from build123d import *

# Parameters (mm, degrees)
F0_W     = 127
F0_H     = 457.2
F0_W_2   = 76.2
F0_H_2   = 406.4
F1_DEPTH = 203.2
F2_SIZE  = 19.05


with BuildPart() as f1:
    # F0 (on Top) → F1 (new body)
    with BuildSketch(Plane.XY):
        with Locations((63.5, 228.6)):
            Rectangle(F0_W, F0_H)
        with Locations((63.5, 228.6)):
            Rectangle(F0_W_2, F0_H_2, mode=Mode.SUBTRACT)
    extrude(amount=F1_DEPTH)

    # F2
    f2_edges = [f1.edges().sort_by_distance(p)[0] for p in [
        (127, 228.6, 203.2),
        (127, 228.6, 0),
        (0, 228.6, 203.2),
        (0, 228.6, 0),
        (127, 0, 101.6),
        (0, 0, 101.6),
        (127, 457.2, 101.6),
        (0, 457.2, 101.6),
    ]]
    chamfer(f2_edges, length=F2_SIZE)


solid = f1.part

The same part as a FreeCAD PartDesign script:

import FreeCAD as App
import Part
import Sketcher

V = App.Vector
Q = App.Units.Quantity


def edges_at(feature, points):
    """Names of the edges that pass closest to the given points."""
    edges = feature.Shape.Edges
    near = lambda p: min(range(len(edges)), key=lambda i: edges[i].distToShape(Part.Vertex(*p))[0])
    return sorted({f"Edge{near(p) + 1}" for p in points})

doc = App.newDocument("Part")
body = doc.addObject("PartDesign::Body", "Body")

sketch1 = body.newObject("Sketcher::SketchObject", "Sketch")
sketch1.AttachmentSupport = (doc.getObject("XY_Plane"), [""])
sketch1.MapMode = "FlatFace"
sketch1.addGeometry(Part.LineSegment(V(0, 457, 0), V(0, 0, 0)), False)
sketch1.addGeometry(Part.LineSegment(V(0, 0, 0), V(127, 0, 0)), False)
sketch1.addGeometry(Part.LineSegment(V(127, 0, 0), V(127, 457, 0)), False)
sketch1.addGeometry(Part.LineSegment(V(127, 457, 0), V(0, 457, 0)), False)
sketch1.addGeometry(Part.LineSegment(V(102, 25, 0), V(25, 25, 0)), False)
sketch1.addGeometry(Part.LineSegment(V(25, 25, 0), V(25, 432, 0)), False)
sketch1.addGeometry(Part.LineSegment(V(25, 432, 0), V(102, 432, 0)), False)
sketch1.addGeometry(Part.LineSegment(V(102, 432, 0), V(102, 25, 0)), False)
sketch1.addConstraint(Sketcher.Constraint("Coincident", 0, 2, 1, 1))
sketch1.addConstraint(Sketcher.Constraint("Coincident", 1, 2, 2, 1))
sketch1.addConstraint(Sketcher.Constraint("Coincident", 2, 2, 3, 1))
sketch1.addConstraint(Sketcher.Constraint("Coincident", 3, 2, 0, 1))
sketch1.addConstraint(Sketcher.Constraint("Coincident", 4, 2, 5, 1))
sketch1.addConstraint(Sketcher.Constraint("Coincident", 5, 2, 6, 1))
sketch1.addConstraint(Sketcher.Constraint("Coincident", 6, 2, 7, 1))
sketch1.addConstraint(Sketcher.Constraint("Coincident", 7, 2, 4, 1))
sketch1.addConstraint(Sketcher.Constraint("Vertical", 0))
sketch1.addConstraint(Sketcher.Constraint("Horizontal", 1))
sketch1.addConstraint(Sketcher.Constraint("Vertical", 2))
sketch1.addConstraint(Sketcher.Constraint("Horizontal", 3))
sketch1.addConstraint(Sketcher.Constraint("Horizontal", 4))
sketch1.addConstraint(Sketcher.Constraint("Vertical", 5))
sketch1.addConstraint(Sketcher.Constraint("Horizontal", 6))
sketch1.addConstraint(Sketcher.Constraint("Vertical", 7))
sketch1.addConstraint(Sketcher.Constraint("Coincident", 0, 2, -1, 1))
sketch1.addConstraint(Sketcher.Constraint("DistanceX", 1, 1, 1, 2, Q("5 in")))
sketch1.addConstraint(Sketcher.Constraint("DistanceX", 4, 2, 4, 1, Q("3 in")))
sketch1.addConstraint(Sketcher.Constraint("DistanceY", 0, 2, 0, 1, Q("18 in")))
sketch1.addConstraint(Sketcher.Constraint("DistanceY", 5, 1, 5, 2, Q("16 in")))
sketch1.addConstraint(Sketcher.Constraint("DistanceX", -1, 1, 4, 2, Q("1 in")))
sketch1.addConstraint(Sketcher.Constraint("DistanceY", -1, 1, 4, 2, Q("1 in")))
pad1 = body.newObject("PartDesign::Pad", "Pad")
pad1.Profile = sketch1
pad1.Length = Q("8 in")
doc.recompute()

chamfer = body.newObject("PartDesign::Chamfer", "Chamfer")
chamfer.Base = (pad1, edges_at(pad1, [
    (127, 228.6, 203.2),
    (127, 228.6, 0),
    (0, 228.6, 203.2),
    (0, 228.6, 0),
    (127, 0, 101.6),
    (0, 0, 101.6),
    (127, 457.2, 101.6),
    (0, 457.2, 101.6),
]))
chamfer.Size = Q("0.75 in")

doc.recompute()
